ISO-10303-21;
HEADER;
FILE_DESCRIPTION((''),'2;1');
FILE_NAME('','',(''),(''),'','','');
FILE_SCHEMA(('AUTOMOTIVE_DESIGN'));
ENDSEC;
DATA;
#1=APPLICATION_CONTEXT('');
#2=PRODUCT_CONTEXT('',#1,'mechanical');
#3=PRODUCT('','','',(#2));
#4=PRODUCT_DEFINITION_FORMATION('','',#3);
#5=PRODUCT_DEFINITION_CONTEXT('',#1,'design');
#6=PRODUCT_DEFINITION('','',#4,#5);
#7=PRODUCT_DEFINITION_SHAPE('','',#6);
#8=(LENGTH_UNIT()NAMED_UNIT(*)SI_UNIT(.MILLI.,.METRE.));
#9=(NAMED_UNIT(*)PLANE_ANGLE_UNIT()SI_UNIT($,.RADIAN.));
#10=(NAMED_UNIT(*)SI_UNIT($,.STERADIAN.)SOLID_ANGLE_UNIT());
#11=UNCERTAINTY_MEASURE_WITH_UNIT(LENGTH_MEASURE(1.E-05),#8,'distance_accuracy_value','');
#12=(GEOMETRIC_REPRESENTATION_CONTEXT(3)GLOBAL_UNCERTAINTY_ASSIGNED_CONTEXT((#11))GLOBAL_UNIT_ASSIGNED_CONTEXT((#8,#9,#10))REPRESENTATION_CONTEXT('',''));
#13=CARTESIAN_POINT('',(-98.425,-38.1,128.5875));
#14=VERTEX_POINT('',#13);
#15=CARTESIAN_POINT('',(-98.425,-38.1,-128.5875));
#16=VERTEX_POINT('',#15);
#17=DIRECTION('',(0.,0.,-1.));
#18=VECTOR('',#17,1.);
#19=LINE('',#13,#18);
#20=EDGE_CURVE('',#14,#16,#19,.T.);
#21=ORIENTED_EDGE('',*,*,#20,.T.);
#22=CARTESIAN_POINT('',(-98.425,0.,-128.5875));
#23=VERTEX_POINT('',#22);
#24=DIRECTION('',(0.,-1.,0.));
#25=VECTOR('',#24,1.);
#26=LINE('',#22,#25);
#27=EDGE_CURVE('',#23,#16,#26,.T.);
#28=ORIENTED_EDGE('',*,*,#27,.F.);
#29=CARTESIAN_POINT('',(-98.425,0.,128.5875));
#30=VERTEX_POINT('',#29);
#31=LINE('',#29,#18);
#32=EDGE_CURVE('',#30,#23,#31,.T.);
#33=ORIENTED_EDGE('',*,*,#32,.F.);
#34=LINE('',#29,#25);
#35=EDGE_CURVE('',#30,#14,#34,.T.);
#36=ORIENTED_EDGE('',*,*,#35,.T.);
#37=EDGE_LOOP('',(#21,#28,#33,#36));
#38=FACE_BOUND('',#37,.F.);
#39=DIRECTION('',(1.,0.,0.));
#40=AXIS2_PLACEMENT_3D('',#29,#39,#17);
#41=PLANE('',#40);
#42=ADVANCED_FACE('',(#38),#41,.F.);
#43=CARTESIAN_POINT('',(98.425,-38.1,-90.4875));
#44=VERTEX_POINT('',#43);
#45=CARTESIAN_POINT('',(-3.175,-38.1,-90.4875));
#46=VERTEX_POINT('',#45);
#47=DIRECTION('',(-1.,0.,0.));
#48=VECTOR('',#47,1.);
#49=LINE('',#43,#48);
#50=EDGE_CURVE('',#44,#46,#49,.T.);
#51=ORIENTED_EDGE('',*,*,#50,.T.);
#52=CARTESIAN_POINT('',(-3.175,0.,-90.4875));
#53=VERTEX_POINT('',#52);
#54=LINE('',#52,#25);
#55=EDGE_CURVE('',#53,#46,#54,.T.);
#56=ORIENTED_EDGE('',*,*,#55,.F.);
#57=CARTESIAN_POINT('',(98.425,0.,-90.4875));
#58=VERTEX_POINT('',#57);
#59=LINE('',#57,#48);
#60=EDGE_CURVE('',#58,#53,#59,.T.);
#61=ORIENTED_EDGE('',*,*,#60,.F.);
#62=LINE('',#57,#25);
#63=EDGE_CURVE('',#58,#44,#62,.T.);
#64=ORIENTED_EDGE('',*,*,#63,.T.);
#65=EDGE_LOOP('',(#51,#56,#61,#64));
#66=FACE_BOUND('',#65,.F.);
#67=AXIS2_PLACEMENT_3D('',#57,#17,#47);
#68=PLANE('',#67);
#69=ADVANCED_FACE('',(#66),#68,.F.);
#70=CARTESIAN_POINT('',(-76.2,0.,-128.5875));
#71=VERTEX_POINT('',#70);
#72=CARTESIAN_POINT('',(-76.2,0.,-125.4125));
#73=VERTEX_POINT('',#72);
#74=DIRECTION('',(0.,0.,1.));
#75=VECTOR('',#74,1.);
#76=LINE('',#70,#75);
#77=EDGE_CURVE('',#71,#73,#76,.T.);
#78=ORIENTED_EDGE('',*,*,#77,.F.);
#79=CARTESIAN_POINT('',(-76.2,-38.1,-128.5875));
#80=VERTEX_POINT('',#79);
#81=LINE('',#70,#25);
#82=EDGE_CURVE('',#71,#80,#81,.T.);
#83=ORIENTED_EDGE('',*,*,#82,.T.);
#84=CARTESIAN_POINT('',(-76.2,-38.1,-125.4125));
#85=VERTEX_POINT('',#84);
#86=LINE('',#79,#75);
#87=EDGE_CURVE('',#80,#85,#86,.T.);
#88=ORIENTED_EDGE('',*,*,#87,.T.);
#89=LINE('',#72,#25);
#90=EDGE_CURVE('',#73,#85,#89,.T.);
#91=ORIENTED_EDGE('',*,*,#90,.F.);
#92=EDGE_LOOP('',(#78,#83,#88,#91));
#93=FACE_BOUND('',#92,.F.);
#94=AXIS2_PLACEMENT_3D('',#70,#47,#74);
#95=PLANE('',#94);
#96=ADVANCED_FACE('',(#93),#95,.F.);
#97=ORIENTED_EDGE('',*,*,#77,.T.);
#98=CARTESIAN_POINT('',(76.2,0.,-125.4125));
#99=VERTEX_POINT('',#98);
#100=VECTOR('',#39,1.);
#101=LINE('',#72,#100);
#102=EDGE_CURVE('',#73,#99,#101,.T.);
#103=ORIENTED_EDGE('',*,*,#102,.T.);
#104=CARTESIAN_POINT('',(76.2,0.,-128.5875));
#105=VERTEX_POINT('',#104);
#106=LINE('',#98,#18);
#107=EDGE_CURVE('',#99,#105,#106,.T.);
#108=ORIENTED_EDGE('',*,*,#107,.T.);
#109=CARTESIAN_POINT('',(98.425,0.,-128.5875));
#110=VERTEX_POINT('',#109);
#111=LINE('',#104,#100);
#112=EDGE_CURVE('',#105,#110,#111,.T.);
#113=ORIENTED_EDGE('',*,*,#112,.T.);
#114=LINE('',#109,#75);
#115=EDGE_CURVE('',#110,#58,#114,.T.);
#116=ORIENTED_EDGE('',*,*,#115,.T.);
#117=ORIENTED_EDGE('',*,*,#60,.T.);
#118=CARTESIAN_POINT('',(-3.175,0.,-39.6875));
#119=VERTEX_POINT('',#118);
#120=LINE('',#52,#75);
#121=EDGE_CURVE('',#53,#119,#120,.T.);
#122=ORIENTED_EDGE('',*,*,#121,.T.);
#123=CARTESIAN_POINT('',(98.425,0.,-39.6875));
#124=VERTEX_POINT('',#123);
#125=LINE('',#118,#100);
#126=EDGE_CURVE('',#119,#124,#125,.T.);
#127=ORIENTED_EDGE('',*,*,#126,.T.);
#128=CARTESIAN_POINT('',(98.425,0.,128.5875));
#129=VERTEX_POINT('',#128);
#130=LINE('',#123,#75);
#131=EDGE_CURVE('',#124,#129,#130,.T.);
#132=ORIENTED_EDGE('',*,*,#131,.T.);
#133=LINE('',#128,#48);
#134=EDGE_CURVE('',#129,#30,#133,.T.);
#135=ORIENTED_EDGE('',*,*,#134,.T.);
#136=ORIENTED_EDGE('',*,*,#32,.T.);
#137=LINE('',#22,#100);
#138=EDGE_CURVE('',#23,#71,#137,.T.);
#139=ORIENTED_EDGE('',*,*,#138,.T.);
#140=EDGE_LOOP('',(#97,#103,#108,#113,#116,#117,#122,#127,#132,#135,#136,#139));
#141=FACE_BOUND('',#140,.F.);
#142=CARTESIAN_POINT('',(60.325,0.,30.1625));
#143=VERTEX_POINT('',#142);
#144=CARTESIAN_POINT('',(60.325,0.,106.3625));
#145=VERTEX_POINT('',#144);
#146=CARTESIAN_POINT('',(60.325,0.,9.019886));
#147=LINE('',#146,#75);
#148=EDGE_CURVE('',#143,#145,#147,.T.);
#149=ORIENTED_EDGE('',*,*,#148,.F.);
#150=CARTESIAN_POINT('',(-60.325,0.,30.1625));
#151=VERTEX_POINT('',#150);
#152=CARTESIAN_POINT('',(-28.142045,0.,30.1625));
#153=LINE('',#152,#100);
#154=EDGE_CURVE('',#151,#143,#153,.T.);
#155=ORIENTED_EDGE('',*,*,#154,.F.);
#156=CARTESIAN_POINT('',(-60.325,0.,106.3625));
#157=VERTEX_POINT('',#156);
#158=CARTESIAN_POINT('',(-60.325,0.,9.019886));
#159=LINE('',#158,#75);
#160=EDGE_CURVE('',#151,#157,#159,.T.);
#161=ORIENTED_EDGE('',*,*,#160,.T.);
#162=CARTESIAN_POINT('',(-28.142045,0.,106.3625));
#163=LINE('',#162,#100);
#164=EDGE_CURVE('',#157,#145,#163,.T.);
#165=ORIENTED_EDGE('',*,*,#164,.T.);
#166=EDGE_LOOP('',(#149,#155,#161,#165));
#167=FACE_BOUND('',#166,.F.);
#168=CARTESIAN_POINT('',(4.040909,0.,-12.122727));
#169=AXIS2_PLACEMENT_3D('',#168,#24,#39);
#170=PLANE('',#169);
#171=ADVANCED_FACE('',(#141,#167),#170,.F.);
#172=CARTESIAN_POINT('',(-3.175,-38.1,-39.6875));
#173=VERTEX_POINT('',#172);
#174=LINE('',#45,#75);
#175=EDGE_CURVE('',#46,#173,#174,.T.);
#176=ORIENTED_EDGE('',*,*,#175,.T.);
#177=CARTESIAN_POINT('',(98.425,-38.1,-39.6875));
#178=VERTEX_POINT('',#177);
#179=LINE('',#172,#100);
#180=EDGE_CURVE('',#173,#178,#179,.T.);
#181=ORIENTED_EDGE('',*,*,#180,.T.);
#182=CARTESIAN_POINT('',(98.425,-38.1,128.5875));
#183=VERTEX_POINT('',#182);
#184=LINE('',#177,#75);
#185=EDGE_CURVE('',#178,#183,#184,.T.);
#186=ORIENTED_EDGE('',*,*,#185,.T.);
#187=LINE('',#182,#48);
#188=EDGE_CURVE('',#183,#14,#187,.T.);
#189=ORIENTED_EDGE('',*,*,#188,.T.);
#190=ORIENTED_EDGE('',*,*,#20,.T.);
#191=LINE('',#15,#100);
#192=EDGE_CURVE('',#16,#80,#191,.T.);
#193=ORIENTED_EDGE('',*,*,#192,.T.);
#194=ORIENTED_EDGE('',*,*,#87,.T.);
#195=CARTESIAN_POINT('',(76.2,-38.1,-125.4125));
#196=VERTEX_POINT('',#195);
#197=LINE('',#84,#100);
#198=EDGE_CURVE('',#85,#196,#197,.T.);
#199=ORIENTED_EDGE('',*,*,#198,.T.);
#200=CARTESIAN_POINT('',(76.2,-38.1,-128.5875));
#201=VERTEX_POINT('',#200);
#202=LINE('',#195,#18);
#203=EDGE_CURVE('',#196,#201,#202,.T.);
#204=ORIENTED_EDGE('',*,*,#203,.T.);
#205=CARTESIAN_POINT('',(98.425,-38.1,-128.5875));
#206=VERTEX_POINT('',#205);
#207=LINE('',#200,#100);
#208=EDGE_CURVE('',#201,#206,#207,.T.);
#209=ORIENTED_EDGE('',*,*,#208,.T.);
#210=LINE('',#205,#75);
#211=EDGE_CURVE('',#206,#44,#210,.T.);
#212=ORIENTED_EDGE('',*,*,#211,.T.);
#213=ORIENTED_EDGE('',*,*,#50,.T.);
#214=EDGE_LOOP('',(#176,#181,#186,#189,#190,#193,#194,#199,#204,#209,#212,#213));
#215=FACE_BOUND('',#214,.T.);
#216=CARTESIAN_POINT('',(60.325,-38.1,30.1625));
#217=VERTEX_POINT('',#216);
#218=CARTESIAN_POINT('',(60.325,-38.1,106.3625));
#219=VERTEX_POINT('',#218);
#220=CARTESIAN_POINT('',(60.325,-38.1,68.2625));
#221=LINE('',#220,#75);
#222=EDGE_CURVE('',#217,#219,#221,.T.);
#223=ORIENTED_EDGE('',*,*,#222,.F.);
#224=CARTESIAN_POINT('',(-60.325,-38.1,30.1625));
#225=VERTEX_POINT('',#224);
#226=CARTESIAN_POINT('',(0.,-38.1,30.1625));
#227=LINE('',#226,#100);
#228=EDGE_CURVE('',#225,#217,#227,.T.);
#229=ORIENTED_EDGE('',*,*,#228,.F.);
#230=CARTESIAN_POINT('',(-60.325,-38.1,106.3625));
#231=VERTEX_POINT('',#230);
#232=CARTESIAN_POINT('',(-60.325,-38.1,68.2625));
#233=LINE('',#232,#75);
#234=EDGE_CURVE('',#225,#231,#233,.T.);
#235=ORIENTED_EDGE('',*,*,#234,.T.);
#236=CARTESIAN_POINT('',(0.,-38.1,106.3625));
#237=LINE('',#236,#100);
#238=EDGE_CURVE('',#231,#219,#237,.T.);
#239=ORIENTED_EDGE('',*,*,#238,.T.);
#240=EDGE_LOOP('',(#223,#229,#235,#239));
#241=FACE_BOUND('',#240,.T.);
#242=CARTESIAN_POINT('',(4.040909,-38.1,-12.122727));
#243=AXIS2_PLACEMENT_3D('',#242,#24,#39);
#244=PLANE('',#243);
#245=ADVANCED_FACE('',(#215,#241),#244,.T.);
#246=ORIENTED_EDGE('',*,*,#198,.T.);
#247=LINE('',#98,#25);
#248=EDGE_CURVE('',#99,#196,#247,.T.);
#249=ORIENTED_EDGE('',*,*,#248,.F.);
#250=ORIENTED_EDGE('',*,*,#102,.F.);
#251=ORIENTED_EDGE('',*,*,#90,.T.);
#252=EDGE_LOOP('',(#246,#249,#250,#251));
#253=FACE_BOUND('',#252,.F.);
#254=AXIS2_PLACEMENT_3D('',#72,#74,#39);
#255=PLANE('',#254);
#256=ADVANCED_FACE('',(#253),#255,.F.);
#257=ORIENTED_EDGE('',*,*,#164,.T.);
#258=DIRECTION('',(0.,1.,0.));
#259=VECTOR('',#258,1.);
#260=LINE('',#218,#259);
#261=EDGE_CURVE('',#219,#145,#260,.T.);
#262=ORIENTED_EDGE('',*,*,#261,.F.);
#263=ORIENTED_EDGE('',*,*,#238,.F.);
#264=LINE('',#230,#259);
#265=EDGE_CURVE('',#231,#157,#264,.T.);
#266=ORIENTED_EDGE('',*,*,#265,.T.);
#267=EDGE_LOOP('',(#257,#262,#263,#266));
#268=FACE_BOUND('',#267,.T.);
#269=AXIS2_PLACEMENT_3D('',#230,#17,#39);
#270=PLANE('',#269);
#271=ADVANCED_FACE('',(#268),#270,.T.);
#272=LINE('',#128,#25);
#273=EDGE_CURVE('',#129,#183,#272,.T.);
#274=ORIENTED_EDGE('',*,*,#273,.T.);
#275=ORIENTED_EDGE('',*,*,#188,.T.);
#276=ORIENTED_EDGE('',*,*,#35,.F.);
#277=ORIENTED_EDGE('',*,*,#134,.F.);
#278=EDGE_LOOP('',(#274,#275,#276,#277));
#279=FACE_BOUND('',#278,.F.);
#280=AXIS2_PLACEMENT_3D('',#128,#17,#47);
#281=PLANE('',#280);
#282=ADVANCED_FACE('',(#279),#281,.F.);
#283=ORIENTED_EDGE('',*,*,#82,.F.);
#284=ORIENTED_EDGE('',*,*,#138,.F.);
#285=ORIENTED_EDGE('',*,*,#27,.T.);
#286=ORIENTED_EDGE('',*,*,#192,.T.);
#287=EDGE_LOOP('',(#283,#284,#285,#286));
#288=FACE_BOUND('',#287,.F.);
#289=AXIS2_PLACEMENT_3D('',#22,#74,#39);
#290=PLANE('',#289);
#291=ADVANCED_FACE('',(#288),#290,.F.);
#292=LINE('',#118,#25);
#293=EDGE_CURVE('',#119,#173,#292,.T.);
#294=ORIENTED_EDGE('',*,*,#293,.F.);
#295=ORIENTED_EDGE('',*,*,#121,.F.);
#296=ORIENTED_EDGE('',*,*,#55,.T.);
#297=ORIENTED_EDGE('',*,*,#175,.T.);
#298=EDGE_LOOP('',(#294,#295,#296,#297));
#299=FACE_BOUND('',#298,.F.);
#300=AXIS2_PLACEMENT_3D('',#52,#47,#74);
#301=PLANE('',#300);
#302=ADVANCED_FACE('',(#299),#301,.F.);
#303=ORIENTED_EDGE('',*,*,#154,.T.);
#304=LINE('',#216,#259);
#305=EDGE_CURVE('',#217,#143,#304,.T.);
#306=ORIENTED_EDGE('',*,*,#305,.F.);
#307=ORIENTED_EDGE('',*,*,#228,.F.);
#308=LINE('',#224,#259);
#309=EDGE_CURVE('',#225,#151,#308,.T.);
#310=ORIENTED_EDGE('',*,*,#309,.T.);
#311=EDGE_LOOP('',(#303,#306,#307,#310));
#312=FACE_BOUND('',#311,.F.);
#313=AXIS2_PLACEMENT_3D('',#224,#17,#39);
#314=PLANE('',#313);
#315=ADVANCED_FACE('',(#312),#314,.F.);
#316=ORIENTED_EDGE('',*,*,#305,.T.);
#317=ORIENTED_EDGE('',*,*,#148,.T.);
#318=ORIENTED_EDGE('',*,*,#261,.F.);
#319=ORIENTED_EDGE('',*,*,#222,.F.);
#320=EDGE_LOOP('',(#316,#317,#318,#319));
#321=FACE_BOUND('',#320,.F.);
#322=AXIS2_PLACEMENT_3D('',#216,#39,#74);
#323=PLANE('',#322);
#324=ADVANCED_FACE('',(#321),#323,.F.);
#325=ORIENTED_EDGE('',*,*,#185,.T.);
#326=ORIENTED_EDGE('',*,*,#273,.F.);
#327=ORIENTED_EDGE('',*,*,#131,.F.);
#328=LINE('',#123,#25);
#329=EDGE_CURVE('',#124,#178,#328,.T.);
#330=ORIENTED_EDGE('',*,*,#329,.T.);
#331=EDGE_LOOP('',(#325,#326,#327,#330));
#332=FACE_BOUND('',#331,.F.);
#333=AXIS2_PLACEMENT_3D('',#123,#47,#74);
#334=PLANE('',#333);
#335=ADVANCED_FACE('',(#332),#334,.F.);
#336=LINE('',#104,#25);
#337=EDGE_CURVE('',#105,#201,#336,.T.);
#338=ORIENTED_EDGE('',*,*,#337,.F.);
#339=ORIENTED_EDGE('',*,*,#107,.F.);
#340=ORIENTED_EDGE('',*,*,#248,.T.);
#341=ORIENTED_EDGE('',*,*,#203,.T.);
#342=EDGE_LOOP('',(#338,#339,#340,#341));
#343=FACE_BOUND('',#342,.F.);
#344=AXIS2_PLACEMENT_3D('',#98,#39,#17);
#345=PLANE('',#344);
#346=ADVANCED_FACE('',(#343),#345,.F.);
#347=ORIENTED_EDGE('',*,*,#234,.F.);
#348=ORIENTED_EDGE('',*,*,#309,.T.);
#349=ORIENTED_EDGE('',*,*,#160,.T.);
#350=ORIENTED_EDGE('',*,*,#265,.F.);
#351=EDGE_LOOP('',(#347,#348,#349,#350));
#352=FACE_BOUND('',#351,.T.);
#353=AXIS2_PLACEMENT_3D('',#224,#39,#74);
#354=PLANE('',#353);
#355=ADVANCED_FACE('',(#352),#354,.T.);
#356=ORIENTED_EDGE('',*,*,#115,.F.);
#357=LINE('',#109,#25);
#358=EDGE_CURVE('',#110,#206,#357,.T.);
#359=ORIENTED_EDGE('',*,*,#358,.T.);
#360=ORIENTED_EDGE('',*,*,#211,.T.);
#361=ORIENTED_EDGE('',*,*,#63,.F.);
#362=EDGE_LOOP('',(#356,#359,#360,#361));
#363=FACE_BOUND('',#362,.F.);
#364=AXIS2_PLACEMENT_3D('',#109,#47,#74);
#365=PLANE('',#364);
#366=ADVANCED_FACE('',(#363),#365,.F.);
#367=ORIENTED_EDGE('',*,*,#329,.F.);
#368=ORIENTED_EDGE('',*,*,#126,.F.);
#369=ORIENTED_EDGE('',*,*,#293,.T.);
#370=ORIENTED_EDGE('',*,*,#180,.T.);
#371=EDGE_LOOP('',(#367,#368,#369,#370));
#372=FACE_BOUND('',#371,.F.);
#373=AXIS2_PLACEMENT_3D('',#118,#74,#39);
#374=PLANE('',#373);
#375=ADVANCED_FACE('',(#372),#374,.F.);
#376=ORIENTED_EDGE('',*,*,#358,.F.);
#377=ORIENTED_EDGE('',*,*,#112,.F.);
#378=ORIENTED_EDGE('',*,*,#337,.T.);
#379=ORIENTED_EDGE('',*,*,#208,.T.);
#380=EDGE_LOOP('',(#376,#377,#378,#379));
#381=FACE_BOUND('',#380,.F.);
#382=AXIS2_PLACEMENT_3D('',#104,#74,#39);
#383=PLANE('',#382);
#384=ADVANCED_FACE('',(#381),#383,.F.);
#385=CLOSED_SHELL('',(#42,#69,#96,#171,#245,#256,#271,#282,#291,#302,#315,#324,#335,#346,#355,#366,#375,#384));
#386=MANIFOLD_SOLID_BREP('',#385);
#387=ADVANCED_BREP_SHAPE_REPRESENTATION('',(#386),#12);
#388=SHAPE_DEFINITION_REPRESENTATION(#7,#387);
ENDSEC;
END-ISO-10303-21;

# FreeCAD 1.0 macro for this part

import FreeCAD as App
import Part
import Sketcher
from FreeCAD import Vector
Q = App.Units.Quantity

doc = App.newDocument("Part")
body = doc.addObject("PartDesign::Body", "Body")

sketch1 = body.newObject("Sketcher::SketchObject", "Sketch")
sketch1.AttachmentSupport = (doc.getObject("XZ_Plane"), [""])
sketch1.MapMode = "FlatFace"
sketch1.addGeometry([
    Part.LineSegment(Vector(98.4, 128.6, 0), Vector(-98.4, 128.6, 0)),
    Part.LineSegment(Vector(-98.4, 128.6, 0), Vector(-98.4, -128.6, 0)),
    Part.LineSegment(Vector(-98.4, -128.6, 0), Vector(-76.2, -128.6, 0)),
    Part.LineSegment(Vector(-76.2, -128.6, 0), Vector(-76.2, -125.4, 0)),
    Part.LineSegment(Vector(-76.2, -125.4, 0), Vector(76.2, -125.4, 0)),
    Part.LineSegment(Vector(76.2, -125.4, 0), Vector(76.2, -128.6, 0)),
    Part.LineSegment(Vector(76.2, -128.6, 0), Vector(98.4, -128.6, 0)),
    Part.LineSegment(Vector(98.4, -128.6, 0), Vector(98.4, -90.5, 0)),
    Part.LineSegment(Vector(98.4, -90.5, 0), Vector(-3.2, -90.5, 0)),
    Part.LineSegment(Vector(-3.2, -90.5, 0), Vector(-3.2, -39.7, 0)),
    Part.LineSegment(Vector(-3.2, -39.7, 0), Vector(98.4, -39.7, 0)),
    Part.LineSegment(Vector(98.4, -39.7, 0), Vector(98.4, 128.6, 0)),
], False)
sketch1.addConstraint([
    Sketcher.Constraint("Coincident", 0, 2, 1, 1),
    Sketcher.Constraint("Coincident", 1, 2, 2, 1),
    Sketcher.Constraint("Coincident", 2, 2, 3, 1),
    Sketcher.Constraint("Coincident", 3, 2, 4, 1),
    Sketcher.Constraint("Coincident", 4, 2, 5, 1),
    Sketcher.Constraint("Coincident", 5, 2, 6, 1),
    Sketcher.Constraint("Coincident", 6, 2, 7, 1),
    Sketcher.Constraint("Coincident", 7, 2, 8, 1),
    Sketcher.Constraint("Coincident", 8, 2, 9, 1),
    Sketcher.Constraint("Coincident", 9, 2, 10, 1),
    Sketcher.Constraint("Coincident", 10, 2, 11, 1),
    Sketcher.Constraint("Coincident", 11, 2, 0, 1),
    Sketcher.Constraint("Horizontal", 0),
    Sketcher.Constraint("Vertical", 1),
    Sketcher.Constraint("Horizontal", 2),
    Sketcher.Constraint("Vertical", 3),
    Sketcher.Constraint("Horizontal", 4),
    Sketcher.Constraint("Vertical", 5),
    Sketcher.Constraint("Horizontal", 6),
    Sketcher.Constraint("Vertical", 7),
    Sketcher.Constraint("Horizontal", 8),
    Sketcher.Constraint("Vertical", 9),
    Sketcher.Constraint("Horizontal", 10),
    Sketcher.Constraint("Vertical", 11),
    Sketcher.Constraint("Symmetric", 0, 2, 6, 2, -1, 1),
    Sketcher.Constraint("Symmetric", 1, 2, 11, 2, -1, 1),
    Sketcher.Constraint("Equal", 2, 6),
    Sketcher.Constraint("DistanceX", 4, 1, 4, 2, Q("6 in")),
    Sketcher.Constraint("DistanceX", 8, 2, 8, 1, Q("4 in")),
    Sketcher.Constraint("DistanceY", 9, 1, 9, 2, Q("2 in")),
    Sketcher.Constraint("DistanceY", 7, 1, 7, 2, Q("1.5 in")),
    Sketcher.Constraint("DistanceY", 3, 2, 0, 2, Q("10 in")),
    Sketcher.Constraint("DistanceX", 0, 2, 0, 1, Q("7.75 in")),
    Sketcher.Constraint("DistanceY", 1, 2, 1, 1, Q("10.125 in")),
])
pad1 = body.newObject("PartDesign::Pad", "Pad")
pad1.Profile = sketch1
pad1.Length = Q("1.5 in")

sketch2 = body.newObject("Sketcher::SketchObject", "Sketch001")
sketch2.AttachmentSupport = (doc.getObject("XZ_Plane"), [""])
sketch2.MapMode = "FlatFace"
sketch2.AttachmentOffset = App.Placement(Vector(0, 0, 1.5 * 25.4), App.Rotation())
sketch2.addGeometry([
    Part.LineSegment(Vector(-60, 106, 0), Vector(-60, 30, 0)),
    Part.LineSegment(Vector(-60, 30, 0), Vector(60, 30, 0)),
    Part.LineSegment(Vector(60, 30, 0), Vector(60, 106, 0)),
    Part.LineSegment(Vector(60, 106, 0), Vector(-60, 106, 0)),
], False)
sketch2.addConstraint([
    Sketcher.Constraint("Coincident", 0, 2, 1, 1),
    Sketcher.Constraint("Coincident", 1, 2, 2, 1),
    Sketcher.Constraint("Coincident", 2, 2, 3, 1),
    Sketcher.Constraint("Coincident", 3, 2, 0, 1),
    Sketcher.Constraint("Vertical", 0),
    Sketcher.Constraint("Horizontal", 1),
    Sketcher.Constraint("Vertical", 2),
    Sketcher.Constraint("Horizontal", 3),
    Sketcher.Constraint("DistanceY", 0, 2, 0, 1, Q("3 in")),
    Sketcher.Constraint("DistanceX", 1, 1, 1, 2, Q("4.75 in")),
    Sketcher.Constraint("DistanceX", 0, 2, -1, 1, Q("2.375 in")),
    Sketcher.Constraint("DistanceY", -1, 1, 0, 2, Q("1.1875 in")),
])
pocket1 = body.newObject("PartDesign::Pocket", "Pocket")
pocket1.Profile = sketch2
pocket1.Type = "ThroughAll"

doc.recompute()
